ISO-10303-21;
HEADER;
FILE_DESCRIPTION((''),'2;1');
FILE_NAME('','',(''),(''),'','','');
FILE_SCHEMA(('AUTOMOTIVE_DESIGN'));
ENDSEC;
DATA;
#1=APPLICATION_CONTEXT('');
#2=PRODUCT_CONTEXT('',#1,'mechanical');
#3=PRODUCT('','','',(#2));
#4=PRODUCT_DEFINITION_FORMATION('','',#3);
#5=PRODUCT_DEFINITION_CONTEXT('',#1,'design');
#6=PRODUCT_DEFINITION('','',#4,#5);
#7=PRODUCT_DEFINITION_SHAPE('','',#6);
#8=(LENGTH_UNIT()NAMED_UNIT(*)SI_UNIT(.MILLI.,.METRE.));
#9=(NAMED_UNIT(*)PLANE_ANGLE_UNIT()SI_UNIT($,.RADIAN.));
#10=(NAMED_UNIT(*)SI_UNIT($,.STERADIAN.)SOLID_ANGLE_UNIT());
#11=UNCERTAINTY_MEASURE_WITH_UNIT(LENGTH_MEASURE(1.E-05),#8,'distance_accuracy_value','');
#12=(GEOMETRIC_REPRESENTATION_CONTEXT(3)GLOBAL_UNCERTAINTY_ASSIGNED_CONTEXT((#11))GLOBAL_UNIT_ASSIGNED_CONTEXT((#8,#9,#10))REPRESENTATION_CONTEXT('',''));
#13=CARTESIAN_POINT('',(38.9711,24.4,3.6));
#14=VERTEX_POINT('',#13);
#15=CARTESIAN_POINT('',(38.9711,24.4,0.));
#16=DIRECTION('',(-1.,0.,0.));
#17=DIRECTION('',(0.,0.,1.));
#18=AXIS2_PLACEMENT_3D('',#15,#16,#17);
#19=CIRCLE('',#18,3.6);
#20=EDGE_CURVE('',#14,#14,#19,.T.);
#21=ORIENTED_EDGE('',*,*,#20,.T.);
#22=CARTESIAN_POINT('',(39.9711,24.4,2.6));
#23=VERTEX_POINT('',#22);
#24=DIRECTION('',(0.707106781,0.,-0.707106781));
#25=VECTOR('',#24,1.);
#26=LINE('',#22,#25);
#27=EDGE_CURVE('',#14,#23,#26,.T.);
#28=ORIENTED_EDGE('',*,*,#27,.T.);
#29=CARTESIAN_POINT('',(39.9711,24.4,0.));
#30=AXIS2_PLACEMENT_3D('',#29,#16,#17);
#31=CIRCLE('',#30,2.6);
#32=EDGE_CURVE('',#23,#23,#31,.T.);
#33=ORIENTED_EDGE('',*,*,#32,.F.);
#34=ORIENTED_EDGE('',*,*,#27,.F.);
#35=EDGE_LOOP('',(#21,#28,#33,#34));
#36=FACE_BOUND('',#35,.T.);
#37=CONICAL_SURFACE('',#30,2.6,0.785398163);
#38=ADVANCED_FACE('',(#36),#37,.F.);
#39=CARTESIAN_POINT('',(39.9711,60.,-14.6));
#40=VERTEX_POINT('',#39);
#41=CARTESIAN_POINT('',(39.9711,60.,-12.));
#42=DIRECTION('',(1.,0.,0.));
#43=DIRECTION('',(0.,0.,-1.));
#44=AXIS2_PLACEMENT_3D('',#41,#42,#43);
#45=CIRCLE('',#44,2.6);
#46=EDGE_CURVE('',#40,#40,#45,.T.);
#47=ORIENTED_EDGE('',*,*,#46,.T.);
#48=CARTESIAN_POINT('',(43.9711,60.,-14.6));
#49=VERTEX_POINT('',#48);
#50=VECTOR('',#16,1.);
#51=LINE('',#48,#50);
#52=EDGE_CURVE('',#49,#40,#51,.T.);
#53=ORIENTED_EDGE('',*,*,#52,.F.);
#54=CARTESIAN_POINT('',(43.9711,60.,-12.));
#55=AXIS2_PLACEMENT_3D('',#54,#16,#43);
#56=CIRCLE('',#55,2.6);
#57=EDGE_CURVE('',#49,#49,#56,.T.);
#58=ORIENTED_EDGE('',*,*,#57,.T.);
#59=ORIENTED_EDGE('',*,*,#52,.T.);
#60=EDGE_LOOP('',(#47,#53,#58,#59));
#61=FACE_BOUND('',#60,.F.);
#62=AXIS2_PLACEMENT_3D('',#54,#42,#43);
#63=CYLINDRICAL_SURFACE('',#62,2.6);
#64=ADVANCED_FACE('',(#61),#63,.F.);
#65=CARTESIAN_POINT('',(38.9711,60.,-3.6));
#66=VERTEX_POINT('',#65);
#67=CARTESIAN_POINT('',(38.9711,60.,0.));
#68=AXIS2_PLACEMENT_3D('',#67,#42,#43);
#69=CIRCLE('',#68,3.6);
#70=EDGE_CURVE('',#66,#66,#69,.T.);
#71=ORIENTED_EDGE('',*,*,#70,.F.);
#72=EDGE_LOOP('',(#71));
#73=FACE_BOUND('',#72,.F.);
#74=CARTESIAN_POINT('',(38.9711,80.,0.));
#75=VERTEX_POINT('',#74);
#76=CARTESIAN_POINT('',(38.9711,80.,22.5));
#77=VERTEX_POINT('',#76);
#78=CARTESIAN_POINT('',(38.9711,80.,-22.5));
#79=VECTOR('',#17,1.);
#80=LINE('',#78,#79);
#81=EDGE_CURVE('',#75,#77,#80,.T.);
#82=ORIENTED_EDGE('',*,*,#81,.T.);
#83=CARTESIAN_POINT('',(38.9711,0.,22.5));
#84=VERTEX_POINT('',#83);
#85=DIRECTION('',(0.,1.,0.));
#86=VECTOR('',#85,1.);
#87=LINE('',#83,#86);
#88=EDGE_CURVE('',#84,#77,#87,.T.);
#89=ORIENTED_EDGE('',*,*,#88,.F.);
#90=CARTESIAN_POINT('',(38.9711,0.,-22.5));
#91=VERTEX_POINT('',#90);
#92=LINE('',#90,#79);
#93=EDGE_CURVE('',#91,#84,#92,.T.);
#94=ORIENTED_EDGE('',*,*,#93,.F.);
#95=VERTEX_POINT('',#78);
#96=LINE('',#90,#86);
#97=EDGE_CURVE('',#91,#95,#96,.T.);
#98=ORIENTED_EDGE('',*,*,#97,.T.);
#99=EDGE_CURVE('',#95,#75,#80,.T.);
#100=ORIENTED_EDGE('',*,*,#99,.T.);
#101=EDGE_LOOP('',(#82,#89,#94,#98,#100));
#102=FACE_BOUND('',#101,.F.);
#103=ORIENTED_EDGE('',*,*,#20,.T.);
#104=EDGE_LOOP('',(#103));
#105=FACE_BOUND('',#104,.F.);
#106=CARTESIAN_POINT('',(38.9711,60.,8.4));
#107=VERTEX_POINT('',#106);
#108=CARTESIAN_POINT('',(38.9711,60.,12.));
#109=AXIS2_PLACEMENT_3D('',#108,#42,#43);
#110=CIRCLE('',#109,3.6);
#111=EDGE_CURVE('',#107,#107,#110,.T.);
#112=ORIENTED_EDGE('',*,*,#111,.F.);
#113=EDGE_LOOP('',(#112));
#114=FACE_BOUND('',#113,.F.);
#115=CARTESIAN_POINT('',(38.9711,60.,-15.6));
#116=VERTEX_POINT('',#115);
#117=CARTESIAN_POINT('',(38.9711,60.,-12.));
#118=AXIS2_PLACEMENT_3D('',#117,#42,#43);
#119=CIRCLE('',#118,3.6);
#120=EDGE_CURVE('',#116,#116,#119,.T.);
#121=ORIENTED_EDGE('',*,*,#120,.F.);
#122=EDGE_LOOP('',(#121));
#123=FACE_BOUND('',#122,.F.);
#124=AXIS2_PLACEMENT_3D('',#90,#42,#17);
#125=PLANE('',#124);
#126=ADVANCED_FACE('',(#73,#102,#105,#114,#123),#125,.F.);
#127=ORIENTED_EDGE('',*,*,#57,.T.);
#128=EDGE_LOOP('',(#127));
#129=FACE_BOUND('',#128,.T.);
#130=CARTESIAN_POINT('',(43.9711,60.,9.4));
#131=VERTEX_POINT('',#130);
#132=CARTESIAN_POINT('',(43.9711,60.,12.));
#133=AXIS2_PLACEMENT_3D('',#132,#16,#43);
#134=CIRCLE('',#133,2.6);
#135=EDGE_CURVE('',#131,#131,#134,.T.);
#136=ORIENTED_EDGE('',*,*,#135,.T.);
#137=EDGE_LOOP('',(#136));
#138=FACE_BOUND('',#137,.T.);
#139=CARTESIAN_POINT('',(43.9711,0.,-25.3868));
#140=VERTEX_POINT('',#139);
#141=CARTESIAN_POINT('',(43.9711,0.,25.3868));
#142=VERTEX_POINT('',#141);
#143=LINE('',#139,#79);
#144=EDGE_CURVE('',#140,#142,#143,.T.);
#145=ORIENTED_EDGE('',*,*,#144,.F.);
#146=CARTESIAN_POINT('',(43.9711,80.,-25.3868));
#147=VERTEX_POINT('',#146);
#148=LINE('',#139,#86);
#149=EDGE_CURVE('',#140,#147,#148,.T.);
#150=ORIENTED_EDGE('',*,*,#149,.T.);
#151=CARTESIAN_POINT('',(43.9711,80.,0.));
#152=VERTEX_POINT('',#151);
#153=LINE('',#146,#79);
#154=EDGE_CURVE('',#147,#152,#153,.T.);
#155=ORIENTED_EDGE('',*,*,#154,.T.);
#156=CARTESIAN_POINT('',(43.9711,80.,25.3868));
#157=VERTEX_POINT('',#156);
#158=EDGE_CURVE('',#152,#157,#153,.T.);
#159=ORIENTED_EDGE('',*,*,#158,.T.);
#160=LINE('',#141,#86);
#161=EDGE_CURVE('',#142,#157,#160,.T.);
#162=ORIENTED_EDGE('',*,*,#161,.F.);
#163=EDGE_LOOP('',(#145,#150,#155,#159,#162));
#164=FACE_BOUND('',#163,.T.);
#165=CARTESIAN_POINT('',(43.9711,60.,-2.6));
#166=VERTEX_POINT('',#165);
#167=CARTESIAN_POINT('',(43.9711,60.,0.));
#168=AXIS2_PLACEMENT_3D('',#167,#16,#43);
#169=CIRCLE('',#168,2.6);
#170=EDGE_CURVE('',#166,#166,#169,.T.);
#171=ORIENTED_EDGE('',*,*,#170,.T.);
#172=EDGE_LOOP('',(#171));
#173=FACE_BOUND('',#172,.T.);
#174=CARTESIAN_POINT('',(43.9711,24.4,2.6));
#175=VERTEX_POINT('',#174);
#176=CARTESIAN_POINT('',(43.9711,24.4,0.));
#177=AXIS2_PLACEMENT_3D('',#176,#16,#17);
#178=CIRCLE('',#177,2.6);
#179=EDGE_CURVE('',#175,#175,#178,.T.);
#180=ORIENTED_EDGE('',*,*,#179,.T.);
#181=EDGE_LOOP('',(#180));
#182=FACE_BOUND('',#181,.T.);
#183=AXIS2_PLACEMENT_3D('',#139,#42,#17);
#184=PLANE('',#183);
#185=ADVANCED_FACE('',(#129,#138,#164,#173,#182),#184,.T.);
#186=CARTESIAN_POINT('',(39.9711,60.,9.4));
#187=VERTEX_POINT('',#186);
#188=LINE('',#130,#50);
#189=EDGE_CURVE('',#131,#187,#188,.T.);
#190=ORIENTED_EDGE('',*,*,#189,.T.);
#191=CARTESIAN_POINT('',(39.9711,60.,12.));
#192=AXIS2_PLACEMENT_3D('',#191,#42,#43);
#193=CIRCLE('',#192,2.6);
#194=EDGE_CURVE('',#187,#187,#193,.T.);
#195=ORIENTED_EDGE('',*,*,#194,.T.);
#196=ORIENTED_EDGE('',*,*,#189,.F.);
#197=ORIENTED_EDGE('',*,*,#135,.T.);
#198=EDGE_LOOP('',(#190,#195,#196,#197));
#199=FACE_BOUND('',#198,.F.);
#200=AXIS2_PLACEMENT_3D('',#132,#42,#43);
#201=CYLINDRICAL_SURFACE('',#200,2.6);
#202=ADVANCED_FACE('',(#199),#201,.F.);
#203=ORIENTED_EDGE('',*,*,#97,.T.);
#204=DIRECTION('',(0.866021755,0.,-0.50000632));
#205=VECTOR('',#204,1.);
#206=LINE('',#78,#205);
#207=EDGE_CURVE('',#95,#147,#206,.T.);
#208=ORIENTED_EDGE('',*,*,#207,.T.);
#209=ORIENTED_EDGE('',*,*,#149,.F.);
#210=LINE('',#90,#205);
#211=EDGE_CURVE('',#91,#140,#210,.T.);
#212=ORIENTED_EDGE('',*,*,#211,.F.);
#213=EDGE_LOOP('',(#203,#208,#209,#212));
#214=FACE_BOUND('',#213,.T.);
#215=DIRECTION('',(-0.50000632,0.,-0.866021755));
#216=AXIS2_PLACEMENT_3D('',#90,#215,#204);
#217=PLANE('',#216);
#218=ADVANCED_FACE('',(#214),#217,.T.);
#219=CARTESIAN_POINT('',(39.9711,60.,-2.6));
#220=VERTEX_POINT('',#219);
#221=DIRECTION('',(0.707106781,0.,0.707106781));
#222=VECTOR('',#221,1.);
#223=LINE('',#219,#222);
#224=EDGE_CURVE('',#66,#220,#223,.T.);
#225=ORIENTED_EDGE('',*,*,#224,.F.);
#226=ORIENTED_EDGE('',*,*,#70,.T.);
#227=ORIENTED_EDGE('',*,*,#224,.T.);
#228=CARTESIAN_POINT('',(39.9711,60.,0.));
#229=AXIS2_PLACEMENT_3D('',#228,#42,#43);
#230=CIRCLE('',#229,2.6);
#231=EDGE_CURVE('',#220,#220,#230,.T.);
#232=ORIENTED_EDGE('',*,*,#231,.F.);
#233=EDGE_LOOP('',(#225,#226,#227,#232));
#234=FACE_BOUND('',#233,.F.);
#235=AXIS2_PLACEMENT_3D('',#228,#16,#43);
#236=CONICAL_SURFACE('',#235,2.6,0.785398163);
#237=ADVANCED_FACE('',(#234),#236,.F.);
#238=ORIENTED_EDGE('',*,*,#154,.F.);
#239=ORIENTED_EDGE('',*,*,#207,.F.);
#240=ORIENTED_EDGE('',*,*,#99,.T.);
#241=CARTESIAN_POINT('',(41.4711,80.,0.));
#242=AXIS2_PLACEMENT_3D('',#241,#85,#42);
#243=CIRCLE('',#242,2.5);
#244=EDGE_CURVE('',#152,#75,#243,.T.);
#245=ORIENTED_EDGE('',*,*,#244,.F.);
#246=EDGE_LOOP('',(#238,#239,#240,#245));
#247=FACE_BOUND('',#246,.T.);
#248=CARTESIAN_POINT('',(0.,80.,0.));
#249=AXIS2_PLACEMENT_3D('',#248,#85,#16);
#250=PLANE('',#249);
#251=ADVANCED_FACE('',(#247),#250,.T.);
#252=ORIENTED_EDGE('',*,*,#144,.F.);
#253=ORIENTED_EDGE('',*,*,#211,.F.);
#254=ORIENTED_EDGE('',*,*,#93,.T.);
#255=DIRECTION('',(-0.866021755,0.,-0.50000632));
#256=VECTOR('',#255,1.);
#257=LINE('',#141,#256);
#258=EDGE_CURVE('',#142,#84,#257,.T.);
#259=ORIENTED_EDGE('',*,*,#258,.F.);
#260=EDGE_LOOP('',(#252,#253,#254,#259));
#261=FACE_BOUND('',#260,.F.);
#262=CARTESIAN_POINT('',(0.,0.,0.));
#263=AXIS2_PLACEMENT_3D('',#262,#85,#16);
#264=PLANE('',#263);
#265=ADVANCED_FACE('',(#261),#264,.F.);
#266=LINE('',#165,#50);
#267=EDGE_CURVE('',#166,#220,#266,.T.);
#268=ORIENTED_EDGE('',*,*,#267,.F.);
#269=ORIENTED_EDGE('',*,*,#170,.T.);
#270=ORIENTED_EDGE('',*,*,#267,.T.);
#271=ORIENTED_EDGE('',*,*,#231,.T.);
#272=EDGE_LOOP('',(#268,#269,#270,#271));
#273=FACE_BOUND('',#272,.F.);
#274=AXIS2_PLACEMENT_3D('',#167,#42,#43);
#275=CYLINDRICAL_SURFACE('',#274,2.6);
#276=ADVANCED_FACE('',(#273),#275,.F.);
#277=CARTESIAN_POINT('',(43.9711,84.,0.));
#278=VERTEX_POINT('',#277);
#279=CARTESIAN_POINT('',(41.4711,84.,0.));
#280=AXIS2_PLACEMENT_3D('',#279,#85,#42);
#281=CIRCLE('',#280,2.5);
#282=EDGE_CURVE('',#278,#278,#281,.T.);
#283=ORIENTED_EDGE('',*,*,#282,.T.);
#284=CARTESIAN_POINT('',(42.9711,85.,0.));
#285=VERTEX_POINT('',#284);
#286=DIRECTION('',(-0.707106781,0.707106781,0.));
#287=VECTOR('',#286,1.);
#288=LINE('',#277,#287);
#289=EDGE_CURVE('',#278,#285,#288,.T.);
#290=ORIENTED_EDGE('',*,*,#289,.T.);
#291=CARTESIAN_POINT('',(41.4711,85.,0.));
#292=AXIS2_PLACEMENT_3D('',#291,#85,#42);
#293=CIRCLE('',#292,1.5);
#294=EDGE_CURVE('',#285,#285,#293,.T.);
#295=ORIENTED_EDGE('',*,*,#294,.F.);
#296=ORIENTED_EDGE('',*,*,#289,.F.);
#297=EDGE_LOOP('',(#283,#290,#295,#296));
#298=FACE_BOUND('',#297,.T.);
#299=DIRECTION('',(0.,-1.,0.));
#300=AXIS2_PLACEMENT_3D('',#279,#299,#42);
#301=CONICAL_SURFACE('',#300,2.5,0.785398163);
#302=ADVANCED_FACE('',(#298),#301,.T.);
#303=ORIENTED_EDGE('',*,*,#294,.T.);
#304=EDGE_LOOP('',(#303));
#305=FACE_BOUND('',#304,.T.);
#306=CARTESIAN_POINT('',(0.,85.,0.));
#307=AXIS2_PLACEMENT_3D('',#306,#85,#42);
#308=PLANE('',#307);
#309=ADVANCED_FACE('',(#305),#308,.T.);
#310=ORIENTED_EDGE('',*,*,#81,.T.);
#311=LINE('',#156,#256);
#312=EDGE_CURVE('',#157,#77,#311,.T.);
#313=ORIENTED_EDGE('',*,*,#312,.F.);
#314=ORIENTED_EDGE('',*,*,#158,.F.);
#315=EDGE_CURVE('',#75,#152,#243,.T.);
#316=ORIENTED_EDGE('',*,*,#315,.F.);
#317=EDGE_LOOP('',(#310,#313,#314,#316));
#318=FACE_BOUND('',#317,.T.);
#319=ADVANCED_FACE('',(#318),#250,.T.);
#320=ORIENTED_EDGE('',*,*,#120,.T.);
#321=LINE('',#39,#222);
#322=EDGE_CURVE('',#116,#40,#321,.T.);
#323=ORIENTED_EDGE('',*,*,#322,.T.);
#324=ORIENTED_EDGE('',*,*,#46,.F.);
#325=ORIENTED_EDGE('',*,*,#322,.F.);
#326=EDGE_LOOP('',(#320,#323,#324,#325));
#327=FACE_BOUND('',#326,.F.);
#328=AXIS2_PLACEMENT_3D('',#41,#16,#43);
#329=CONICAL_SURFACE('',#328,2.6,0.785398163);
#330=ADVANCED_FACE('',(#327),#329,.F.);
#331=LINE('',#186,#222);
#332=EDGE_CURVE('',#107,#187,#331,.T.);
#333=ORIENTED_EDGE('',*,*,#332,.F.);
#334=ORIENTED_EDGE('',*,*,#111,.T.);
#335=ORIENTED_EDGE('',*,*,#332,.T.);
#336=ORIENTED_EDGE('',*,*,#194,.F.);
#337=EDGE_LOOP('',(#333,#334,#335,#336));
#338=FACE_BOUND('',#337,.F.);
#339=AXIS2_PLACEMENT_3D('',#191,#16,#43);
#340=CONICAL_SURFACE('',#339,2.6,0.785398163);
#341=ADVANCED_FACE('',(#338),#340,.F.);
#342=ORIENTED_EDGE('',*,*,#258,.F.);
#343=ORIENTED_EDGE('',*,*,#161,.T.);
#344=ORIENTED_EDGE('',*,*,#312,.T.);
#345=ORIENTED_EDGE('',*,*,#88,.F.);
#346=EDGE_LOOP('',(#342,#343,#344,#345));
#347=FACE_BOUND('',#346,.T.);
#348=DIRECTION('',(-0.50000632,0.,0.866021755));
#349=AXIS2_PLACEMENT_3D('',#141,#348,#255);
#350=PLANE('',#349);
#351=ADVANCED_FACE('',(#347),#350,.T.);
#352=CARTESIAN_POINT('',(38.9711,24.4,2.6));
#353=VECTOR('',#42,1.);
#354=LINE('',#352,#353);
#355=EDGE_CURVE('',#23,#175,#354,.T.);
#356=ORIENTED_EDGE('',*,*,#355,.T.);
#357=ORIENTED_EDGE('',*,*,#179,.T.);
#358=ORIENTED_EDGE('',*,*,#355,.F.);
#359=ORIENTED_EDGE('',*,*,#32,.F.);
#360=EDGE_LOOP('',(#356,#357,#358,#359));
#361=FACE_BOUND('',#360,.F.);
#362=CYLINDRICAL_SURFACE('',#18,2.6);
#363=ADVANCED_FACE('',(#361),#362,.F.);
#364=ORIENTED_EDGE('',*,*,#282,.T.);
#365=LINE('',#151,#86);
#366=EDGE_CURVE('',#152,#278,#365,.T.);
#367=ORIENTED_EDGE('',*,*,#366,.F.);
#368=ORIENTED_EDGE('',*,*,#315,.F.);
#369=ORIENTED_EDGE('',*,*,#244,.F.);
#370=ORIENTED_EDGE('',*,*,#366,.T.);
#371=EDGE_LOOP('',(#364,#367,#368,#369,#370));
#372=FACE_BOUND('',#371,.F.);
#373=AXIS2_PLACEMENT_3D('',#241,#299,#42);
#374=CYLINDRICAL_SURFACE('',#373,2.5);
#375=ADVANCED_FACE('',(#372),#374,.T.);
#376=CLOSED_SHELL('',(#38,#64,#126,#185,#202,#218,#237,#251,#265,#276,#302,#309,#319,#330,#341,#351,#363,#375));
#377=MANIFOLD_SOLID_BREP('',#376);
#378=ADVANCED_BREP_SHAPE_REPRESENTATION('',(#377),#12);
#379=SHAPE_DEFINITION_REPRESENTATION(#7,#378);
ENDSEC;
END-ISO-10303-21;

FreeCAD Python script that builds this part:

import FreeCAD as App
import Part
import Sketcher

V = App.Vector
Q = App.Units.Quantity


def edges_at(feature, points):
    """Names of the edges that pass closest to the given points."""
    edges = feature.Shape.Edges
    near = lambda p: min(range(len(edges)), key=lambda i: edges[i].distToShape(Part.Vertex(*p))[0])
    return sorted({f"Edge{near(p) + 1}" for p in points})

doc = App.newDocument("Part")
body = doc.addObject("PartDesign::Body", "Body")

sketch1 = body.newObject("Sketcher::SketchObject", "Sketch")
sketch1.AttachmentSupport = (doc.getObject("XZ_Plane"), [""])
sketch1.MapMode = "FlatFace"
sketch1.addGeometry(Part.LineSegment(V(39, -22, 0), V(39, 22, 0)), False)
sketch1.addGeometry(Part.LineSegment(V(39, 22, 0), V(44, 25, 0)), False)
sketch1.addGeometry(Part.LineSegment(V(44, 25, 0), V(44, -25, 0)), False)
sketch1.addGeometry(Part.LineSegment(V(44, -25, 0), V(39, -22, 0)), False)
sketch1.addConstraint(Sketcher.Constraint("Coincident", 0, 2, 1, 1))
sketch1.addConstraint(Sketcher.Constraint("Coincident", 1, 2, 2, 1))
sketch1.addConstraint(Sketcher.Constraint("Coincident", 2, 2, 3, 1))
sketch1.addConstraint(Sketcher.Constraint("Coincident", 3, 2, 0, 1))
sketch1.addConstraint(Sketcher.Constraint("Vertical", 0))
sketch1.addConstraint(Sketcher.Constraint("Vertical", 2))
sketch1.addConstraint(Sketcher.Constraint("Equal", 1, 3))
sketch1.addConstraint(Sketcher.Constraint("DistanceY", 0, 1, 0, 2, 45.0))
sketch1.addConstraint(Sketcher.Constraint("DistanceX", 0, 2, 1, 2, 5.0))
sketch1.addConstraint(Sketcher.Constraint("Angle", 1, Q("30.0004 deg")))
sketch1.addConstraint(Sketcher.Constraint("DistanceY", -1, 1, 0, 2, 22.5))
sketch1.addConstraint(Sketcher.Constraint("DistanceX", -1, 1, 0, 2, 38.971))
pad1 = body.newObject("PartDesign::Pad", "Pad")
pad1.Profile = sketch1
pad1.Length = 80
pad1.Reversed = True

sketch2 = body.newObject("Sketcher::SketchObject", "Sketch001")
sketch2.AttachmentSupport = (doc.getObject("YZ_Plane"), [""])
sketch2.MapMode = "FlatFace"
sketch2.AttachmentOffset = App.Placement(V(0, 0, 38.9711), App.Rotation())
sketch2.addGeometry(Part.Circle(V(24.4, 0, 0), V(0, 0, 1), 2.6), False)
sketch2.addConstraint(Sketcher.Constraint("PointOnObject", 0, 3, -1))
sketch2.addConstraint(Sketcher.Constraint("Diameter", 0, 5.2))
sketch2.addConstraint(Sketcher.Constraint("DistanceX", -1, 1, 0, 3, 24.4))
pocket1 = body.newObject("PartDesign::Pocket", "Pocket")
pocket1.Profile = sketch2
pocket1.Type = "ThroughAll"
pocket1.Reversed = True

sketch3 = body.newObject("Sketcher::SketchObject", "Sketch002")
sketch3.AttachmentSupport = (doc.getObject("XZ_Plane"), [""])
sketch3.MapMode = "FlatFace"
sketch3.AttachmentOffset = App.Placement(V(0, 0, -80), App.Rotation())
sketch3.addGeometry(Part.Circle(V(41.5, 0, 0), V(0, 0, 1), 2.5), False)
sketch3.addConstraint(Sketcher.Constraint("PointOnObject", 0, 3, -1))
sketch3.addConstraint(Sketcher.Constraint("Diameter", 0, 5.0))
sketch3.addConstraint(Sketcher.Constraint("DistanceX", -1, 1, 0, 3, 41.471))
pad2 = body.newObject("PartDesign::Pad", "Pad001")
pad2.Profile = sketch3
pad2.Length = 5
pad2.Reversed = True

sketch4 = body.newObject("Sketcher::SketchObject", "Sketch003")
sketch4.AttachmentSupport = (doc.getObject("YZ_Plane"), [""])
sketch4.MapMode = "FlatFace"
sketch4.AttachmentOffset = App.Placement(V(0, 0, 43.9711), App.Rotation())
sketch4.addGeometry(Part.Circle(V(60, 0, 0), V(0, 0, 1), 2.6), False)
sketch4.addGeometry(Part.Circle(V(60, 12, 0), V(0, 0, 1), 2.6), False)
sketch4.addGeometry(Part.Circle(V(60, -12, 0), V(0, 0, 1), 2.6), False)
sketch4.addConstraint(Sketcher.Constraint("Equal", 0, 1))
sketch4.addConstraint(Sketcher.Constraint("Equal", 1, 2))
sketch4.addConstraint(Sketcher.Constraint("Symmetric", 1, 3, 2, 3, -1))
sketch4.addConstraint(Sketcher.Constraint("PointOnObject", 0, 3, -1))
sketch4.addConstraint(Sketcher.Constraint("Vertical", 0, 3, 1, 3))
sketch4.addConstraint(Sketcher.Constraint("Diameter", 0, 5.2))
sketch4.addConstraint(Sketcher.Constraint("DistanceY", -1, 1, 1, 3, 12.0))
sketch4.addConstraint(Sketcher.Constraint("DistanceX", -1, 1, 0, 3, 60.0))
pocket2 = body.newObject("PartDesign::Pocket", "Pocket001")
pocket2.Profile = sketch4
pocket2.Type = "ThroughAll"
doc.recompute()

chamfer = body.newObject("PartDesign::Chamfer", "Chamfer")
chamfer.Base = (pocket2, edges_at(pocket2, [
    (38.971, 85, 0),
    (38.971, 60, -9.4),
    (38.971, 60, 2.6),
    (38.971, 60, 14.6),
    (38.971, 24.4, -2.6),
]))
chamfer.Size = 1

doc.recompute()
